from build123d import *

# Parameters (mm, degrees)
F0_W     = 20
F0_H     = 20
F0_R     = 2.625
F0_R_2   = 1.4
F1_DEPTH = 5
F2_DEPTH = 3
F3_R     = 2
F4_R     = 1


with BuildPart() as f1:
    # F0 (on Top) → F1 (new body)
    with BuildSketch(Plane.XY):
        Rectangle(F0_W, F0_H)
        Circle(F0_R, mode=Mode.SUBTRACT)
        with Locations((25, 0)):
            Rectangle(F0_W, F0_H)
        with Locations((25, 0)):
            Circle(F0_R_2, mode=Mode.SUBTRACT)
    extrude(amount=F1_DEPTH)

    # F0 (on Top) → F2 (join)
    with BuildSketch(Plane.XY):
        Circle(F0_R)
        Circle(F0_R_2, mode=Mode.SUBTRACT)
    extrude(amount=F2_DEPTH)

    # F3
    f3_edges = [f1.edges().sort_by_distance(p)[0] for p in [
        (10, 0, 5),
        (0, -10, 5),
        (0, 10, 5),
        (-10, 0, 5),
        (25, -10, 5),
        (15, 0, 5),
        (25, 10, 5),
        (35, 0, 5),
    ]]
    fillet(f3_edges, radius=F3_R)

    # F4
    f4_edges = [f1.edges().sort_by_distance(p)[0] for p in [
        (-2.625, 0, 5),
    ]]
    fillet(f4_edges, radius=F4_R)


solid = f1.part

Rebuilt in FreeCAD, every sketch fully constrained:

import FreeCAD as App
import Part
import Sketcher

V = App.Vector
Q = App.Units.Quantity


def edges_at(feature, points):
    """Names of the edges that pass closest to the given points."""
    edges = feature.Shape.Edges
    near = lambda p: min(range(len(edges)), key=lambda i: edges[i].distToShape(Part.Vertex(*p))[0])
    return sorted({f"Edge{near(p) + 1}" for p in points})


def add_polygon(sketch, points):
    """Adds a closed chain of lines whose ends are joined by coincident constraints."""
    first, n = sketch.GeometryCount, len(points)
    for a, b in zip(points, points[1:] + points[:1]):
        sketch.addGeometry(Part.LineSegment(App.Vector(*a, 0), App.Vector(*b, 0)), False)
    for i in range(n):
        sketch.addConstraint(Sketcher.Constraint("Coincident", first + i, 2, first + (i + 1) % n, 1))

doc = App.newDocument("Part")
body = doc.addObject("PartDesign::Body", "Body")
body.AllowCompound = True

sketch1 = doc.addObject("Sketcher::SketchObject", "Sketch")
body.addObject(sketch1)
sketch1.AttachmentSupport = (doc.XY_Plane, [""])
sketch1.MapMode = "FlatFace"
add_polygon(sketch1, [(-10, 10), (-10, -10), (10, -10), (10, 10)])
sketch1.addGeometry(Part.Circle(V(0, 0, 0), V(0, 0, 1), 2.6), False)
add_polygon(sketch1, [(15, 10), (15, -10), (35, -10), (35, 10)])
sketch1.addGeometry(Part.Circle(V(25, 0, 0), V(0, 0, 1), 1.4), False)
sketch1.addConstraint([
    Sketcher.Constraint("Vertical", 0),
    Sketcher.Constraint("Horizontal", 1),
    Sketcher.Constraint("Vertical", 2),
    Sketcher.Constraint("Horizontal", 3),
    Sketcher.Constraint("Vertical", 5),
    Sketcher.Constraint("Horizontal", 6),
    Sketcher.Constraint("Vertical", 7),
    Sketcher.Constraint("Horizontal", 8),
    Sketcher.Constraint("Coincident", 4, 3, -1, 1),
    Sketcher.Constraint("Symmetric", 0, 2, 2, 2, -1, 1),
    Sketcher.Constraint("PointOnObject", 9, 3, -1),
    Sketcher.Constraint("Horizontal", 1, 2, 5, 2),
    Sketcher.Constraint("Horizontal", 3, 2, 7, 2),
    Sketcher.Constraint("Equal", 3, 6),
    Sketcher.Constraint("Equal", 8, 0),
    Sketcher.Constraint("Diameter", 9, Q("2.8 mm")),
    Sketcher.Constraint("Diameter", 4, Q("5.25 mm")),
    Sketcher.Constraint("DistanceX", 1, 1, 1, 2, Q("20 mm")),
    Sketcher.Constraint("DistanceX", -1, 1, 9, 3, Q("25 mm")),
    Sketcher.Constraint("DistanceX", -1, 1, 5, 2, Q("15 mm")),
])
pad1 = doc.addObject("PartDesign::Pad", "Pad")
body.addObject(pad1)
pad1.Profile = sketch1
pad1.Length = 5

sketch2 = doc.addObject("Sketcher::SketchObject", "Sketch001")
body.addObject(sketch2)
sketch2.AttachmentSupport = (doc.XY_Plane, [""])
sketch2.MapMode = "FlatFace"
sketch2.addGeometry([
    Part.Circle(V(0, 0, 0), V(0, 0, 1), 2.6),
    Part.Circle(V(0, 0, 0), V(0, 0, 1), 1.4),
], False)
sketch2.addConstraint([
    Sketcher.Constraint("Coincident", 0, 3, -1, 1),
    Sketcher.Constraint("Coincident", 1, 3, -1, 1),
    Sketcher.Constraint("Diameter", 1, Q("2.8 mm")),
    Sketcher.Constraint("Diameter", 0, Q("5.25 mm")),
])
pad2 = doc.addObject("PartDesign::Pad", "Pad001")
body.addObject(pad2)
pad2.Profile = sketch2
pad2.Length = 3
doc.recompute()

fillet = doc.addObject("PartDesign::Fillet", "Fillet")
body.addObject(fillet)
fillet.Base = (pad2, edges_at(pad2, [
    (10, 0, 5),
    (0, -10, 5),
    (0, 10, 5),
    (-10, 0, 5),
    (25, -10, 5),
    (15, 0, 5),
    (25, 10, 5),
    (35, 0, 5),
]))
fillet.Radius = 2
doc.recompute()

fillet2 = doc.addObject("PartDesign::Fillet", "Fillet001")
body.addObject(fillet2)
fillet2.Base = (fillet, edges_at(fillet, [(-2.625, 0, 5)]))
fillet2.Radius = 1

doc.recompute()
